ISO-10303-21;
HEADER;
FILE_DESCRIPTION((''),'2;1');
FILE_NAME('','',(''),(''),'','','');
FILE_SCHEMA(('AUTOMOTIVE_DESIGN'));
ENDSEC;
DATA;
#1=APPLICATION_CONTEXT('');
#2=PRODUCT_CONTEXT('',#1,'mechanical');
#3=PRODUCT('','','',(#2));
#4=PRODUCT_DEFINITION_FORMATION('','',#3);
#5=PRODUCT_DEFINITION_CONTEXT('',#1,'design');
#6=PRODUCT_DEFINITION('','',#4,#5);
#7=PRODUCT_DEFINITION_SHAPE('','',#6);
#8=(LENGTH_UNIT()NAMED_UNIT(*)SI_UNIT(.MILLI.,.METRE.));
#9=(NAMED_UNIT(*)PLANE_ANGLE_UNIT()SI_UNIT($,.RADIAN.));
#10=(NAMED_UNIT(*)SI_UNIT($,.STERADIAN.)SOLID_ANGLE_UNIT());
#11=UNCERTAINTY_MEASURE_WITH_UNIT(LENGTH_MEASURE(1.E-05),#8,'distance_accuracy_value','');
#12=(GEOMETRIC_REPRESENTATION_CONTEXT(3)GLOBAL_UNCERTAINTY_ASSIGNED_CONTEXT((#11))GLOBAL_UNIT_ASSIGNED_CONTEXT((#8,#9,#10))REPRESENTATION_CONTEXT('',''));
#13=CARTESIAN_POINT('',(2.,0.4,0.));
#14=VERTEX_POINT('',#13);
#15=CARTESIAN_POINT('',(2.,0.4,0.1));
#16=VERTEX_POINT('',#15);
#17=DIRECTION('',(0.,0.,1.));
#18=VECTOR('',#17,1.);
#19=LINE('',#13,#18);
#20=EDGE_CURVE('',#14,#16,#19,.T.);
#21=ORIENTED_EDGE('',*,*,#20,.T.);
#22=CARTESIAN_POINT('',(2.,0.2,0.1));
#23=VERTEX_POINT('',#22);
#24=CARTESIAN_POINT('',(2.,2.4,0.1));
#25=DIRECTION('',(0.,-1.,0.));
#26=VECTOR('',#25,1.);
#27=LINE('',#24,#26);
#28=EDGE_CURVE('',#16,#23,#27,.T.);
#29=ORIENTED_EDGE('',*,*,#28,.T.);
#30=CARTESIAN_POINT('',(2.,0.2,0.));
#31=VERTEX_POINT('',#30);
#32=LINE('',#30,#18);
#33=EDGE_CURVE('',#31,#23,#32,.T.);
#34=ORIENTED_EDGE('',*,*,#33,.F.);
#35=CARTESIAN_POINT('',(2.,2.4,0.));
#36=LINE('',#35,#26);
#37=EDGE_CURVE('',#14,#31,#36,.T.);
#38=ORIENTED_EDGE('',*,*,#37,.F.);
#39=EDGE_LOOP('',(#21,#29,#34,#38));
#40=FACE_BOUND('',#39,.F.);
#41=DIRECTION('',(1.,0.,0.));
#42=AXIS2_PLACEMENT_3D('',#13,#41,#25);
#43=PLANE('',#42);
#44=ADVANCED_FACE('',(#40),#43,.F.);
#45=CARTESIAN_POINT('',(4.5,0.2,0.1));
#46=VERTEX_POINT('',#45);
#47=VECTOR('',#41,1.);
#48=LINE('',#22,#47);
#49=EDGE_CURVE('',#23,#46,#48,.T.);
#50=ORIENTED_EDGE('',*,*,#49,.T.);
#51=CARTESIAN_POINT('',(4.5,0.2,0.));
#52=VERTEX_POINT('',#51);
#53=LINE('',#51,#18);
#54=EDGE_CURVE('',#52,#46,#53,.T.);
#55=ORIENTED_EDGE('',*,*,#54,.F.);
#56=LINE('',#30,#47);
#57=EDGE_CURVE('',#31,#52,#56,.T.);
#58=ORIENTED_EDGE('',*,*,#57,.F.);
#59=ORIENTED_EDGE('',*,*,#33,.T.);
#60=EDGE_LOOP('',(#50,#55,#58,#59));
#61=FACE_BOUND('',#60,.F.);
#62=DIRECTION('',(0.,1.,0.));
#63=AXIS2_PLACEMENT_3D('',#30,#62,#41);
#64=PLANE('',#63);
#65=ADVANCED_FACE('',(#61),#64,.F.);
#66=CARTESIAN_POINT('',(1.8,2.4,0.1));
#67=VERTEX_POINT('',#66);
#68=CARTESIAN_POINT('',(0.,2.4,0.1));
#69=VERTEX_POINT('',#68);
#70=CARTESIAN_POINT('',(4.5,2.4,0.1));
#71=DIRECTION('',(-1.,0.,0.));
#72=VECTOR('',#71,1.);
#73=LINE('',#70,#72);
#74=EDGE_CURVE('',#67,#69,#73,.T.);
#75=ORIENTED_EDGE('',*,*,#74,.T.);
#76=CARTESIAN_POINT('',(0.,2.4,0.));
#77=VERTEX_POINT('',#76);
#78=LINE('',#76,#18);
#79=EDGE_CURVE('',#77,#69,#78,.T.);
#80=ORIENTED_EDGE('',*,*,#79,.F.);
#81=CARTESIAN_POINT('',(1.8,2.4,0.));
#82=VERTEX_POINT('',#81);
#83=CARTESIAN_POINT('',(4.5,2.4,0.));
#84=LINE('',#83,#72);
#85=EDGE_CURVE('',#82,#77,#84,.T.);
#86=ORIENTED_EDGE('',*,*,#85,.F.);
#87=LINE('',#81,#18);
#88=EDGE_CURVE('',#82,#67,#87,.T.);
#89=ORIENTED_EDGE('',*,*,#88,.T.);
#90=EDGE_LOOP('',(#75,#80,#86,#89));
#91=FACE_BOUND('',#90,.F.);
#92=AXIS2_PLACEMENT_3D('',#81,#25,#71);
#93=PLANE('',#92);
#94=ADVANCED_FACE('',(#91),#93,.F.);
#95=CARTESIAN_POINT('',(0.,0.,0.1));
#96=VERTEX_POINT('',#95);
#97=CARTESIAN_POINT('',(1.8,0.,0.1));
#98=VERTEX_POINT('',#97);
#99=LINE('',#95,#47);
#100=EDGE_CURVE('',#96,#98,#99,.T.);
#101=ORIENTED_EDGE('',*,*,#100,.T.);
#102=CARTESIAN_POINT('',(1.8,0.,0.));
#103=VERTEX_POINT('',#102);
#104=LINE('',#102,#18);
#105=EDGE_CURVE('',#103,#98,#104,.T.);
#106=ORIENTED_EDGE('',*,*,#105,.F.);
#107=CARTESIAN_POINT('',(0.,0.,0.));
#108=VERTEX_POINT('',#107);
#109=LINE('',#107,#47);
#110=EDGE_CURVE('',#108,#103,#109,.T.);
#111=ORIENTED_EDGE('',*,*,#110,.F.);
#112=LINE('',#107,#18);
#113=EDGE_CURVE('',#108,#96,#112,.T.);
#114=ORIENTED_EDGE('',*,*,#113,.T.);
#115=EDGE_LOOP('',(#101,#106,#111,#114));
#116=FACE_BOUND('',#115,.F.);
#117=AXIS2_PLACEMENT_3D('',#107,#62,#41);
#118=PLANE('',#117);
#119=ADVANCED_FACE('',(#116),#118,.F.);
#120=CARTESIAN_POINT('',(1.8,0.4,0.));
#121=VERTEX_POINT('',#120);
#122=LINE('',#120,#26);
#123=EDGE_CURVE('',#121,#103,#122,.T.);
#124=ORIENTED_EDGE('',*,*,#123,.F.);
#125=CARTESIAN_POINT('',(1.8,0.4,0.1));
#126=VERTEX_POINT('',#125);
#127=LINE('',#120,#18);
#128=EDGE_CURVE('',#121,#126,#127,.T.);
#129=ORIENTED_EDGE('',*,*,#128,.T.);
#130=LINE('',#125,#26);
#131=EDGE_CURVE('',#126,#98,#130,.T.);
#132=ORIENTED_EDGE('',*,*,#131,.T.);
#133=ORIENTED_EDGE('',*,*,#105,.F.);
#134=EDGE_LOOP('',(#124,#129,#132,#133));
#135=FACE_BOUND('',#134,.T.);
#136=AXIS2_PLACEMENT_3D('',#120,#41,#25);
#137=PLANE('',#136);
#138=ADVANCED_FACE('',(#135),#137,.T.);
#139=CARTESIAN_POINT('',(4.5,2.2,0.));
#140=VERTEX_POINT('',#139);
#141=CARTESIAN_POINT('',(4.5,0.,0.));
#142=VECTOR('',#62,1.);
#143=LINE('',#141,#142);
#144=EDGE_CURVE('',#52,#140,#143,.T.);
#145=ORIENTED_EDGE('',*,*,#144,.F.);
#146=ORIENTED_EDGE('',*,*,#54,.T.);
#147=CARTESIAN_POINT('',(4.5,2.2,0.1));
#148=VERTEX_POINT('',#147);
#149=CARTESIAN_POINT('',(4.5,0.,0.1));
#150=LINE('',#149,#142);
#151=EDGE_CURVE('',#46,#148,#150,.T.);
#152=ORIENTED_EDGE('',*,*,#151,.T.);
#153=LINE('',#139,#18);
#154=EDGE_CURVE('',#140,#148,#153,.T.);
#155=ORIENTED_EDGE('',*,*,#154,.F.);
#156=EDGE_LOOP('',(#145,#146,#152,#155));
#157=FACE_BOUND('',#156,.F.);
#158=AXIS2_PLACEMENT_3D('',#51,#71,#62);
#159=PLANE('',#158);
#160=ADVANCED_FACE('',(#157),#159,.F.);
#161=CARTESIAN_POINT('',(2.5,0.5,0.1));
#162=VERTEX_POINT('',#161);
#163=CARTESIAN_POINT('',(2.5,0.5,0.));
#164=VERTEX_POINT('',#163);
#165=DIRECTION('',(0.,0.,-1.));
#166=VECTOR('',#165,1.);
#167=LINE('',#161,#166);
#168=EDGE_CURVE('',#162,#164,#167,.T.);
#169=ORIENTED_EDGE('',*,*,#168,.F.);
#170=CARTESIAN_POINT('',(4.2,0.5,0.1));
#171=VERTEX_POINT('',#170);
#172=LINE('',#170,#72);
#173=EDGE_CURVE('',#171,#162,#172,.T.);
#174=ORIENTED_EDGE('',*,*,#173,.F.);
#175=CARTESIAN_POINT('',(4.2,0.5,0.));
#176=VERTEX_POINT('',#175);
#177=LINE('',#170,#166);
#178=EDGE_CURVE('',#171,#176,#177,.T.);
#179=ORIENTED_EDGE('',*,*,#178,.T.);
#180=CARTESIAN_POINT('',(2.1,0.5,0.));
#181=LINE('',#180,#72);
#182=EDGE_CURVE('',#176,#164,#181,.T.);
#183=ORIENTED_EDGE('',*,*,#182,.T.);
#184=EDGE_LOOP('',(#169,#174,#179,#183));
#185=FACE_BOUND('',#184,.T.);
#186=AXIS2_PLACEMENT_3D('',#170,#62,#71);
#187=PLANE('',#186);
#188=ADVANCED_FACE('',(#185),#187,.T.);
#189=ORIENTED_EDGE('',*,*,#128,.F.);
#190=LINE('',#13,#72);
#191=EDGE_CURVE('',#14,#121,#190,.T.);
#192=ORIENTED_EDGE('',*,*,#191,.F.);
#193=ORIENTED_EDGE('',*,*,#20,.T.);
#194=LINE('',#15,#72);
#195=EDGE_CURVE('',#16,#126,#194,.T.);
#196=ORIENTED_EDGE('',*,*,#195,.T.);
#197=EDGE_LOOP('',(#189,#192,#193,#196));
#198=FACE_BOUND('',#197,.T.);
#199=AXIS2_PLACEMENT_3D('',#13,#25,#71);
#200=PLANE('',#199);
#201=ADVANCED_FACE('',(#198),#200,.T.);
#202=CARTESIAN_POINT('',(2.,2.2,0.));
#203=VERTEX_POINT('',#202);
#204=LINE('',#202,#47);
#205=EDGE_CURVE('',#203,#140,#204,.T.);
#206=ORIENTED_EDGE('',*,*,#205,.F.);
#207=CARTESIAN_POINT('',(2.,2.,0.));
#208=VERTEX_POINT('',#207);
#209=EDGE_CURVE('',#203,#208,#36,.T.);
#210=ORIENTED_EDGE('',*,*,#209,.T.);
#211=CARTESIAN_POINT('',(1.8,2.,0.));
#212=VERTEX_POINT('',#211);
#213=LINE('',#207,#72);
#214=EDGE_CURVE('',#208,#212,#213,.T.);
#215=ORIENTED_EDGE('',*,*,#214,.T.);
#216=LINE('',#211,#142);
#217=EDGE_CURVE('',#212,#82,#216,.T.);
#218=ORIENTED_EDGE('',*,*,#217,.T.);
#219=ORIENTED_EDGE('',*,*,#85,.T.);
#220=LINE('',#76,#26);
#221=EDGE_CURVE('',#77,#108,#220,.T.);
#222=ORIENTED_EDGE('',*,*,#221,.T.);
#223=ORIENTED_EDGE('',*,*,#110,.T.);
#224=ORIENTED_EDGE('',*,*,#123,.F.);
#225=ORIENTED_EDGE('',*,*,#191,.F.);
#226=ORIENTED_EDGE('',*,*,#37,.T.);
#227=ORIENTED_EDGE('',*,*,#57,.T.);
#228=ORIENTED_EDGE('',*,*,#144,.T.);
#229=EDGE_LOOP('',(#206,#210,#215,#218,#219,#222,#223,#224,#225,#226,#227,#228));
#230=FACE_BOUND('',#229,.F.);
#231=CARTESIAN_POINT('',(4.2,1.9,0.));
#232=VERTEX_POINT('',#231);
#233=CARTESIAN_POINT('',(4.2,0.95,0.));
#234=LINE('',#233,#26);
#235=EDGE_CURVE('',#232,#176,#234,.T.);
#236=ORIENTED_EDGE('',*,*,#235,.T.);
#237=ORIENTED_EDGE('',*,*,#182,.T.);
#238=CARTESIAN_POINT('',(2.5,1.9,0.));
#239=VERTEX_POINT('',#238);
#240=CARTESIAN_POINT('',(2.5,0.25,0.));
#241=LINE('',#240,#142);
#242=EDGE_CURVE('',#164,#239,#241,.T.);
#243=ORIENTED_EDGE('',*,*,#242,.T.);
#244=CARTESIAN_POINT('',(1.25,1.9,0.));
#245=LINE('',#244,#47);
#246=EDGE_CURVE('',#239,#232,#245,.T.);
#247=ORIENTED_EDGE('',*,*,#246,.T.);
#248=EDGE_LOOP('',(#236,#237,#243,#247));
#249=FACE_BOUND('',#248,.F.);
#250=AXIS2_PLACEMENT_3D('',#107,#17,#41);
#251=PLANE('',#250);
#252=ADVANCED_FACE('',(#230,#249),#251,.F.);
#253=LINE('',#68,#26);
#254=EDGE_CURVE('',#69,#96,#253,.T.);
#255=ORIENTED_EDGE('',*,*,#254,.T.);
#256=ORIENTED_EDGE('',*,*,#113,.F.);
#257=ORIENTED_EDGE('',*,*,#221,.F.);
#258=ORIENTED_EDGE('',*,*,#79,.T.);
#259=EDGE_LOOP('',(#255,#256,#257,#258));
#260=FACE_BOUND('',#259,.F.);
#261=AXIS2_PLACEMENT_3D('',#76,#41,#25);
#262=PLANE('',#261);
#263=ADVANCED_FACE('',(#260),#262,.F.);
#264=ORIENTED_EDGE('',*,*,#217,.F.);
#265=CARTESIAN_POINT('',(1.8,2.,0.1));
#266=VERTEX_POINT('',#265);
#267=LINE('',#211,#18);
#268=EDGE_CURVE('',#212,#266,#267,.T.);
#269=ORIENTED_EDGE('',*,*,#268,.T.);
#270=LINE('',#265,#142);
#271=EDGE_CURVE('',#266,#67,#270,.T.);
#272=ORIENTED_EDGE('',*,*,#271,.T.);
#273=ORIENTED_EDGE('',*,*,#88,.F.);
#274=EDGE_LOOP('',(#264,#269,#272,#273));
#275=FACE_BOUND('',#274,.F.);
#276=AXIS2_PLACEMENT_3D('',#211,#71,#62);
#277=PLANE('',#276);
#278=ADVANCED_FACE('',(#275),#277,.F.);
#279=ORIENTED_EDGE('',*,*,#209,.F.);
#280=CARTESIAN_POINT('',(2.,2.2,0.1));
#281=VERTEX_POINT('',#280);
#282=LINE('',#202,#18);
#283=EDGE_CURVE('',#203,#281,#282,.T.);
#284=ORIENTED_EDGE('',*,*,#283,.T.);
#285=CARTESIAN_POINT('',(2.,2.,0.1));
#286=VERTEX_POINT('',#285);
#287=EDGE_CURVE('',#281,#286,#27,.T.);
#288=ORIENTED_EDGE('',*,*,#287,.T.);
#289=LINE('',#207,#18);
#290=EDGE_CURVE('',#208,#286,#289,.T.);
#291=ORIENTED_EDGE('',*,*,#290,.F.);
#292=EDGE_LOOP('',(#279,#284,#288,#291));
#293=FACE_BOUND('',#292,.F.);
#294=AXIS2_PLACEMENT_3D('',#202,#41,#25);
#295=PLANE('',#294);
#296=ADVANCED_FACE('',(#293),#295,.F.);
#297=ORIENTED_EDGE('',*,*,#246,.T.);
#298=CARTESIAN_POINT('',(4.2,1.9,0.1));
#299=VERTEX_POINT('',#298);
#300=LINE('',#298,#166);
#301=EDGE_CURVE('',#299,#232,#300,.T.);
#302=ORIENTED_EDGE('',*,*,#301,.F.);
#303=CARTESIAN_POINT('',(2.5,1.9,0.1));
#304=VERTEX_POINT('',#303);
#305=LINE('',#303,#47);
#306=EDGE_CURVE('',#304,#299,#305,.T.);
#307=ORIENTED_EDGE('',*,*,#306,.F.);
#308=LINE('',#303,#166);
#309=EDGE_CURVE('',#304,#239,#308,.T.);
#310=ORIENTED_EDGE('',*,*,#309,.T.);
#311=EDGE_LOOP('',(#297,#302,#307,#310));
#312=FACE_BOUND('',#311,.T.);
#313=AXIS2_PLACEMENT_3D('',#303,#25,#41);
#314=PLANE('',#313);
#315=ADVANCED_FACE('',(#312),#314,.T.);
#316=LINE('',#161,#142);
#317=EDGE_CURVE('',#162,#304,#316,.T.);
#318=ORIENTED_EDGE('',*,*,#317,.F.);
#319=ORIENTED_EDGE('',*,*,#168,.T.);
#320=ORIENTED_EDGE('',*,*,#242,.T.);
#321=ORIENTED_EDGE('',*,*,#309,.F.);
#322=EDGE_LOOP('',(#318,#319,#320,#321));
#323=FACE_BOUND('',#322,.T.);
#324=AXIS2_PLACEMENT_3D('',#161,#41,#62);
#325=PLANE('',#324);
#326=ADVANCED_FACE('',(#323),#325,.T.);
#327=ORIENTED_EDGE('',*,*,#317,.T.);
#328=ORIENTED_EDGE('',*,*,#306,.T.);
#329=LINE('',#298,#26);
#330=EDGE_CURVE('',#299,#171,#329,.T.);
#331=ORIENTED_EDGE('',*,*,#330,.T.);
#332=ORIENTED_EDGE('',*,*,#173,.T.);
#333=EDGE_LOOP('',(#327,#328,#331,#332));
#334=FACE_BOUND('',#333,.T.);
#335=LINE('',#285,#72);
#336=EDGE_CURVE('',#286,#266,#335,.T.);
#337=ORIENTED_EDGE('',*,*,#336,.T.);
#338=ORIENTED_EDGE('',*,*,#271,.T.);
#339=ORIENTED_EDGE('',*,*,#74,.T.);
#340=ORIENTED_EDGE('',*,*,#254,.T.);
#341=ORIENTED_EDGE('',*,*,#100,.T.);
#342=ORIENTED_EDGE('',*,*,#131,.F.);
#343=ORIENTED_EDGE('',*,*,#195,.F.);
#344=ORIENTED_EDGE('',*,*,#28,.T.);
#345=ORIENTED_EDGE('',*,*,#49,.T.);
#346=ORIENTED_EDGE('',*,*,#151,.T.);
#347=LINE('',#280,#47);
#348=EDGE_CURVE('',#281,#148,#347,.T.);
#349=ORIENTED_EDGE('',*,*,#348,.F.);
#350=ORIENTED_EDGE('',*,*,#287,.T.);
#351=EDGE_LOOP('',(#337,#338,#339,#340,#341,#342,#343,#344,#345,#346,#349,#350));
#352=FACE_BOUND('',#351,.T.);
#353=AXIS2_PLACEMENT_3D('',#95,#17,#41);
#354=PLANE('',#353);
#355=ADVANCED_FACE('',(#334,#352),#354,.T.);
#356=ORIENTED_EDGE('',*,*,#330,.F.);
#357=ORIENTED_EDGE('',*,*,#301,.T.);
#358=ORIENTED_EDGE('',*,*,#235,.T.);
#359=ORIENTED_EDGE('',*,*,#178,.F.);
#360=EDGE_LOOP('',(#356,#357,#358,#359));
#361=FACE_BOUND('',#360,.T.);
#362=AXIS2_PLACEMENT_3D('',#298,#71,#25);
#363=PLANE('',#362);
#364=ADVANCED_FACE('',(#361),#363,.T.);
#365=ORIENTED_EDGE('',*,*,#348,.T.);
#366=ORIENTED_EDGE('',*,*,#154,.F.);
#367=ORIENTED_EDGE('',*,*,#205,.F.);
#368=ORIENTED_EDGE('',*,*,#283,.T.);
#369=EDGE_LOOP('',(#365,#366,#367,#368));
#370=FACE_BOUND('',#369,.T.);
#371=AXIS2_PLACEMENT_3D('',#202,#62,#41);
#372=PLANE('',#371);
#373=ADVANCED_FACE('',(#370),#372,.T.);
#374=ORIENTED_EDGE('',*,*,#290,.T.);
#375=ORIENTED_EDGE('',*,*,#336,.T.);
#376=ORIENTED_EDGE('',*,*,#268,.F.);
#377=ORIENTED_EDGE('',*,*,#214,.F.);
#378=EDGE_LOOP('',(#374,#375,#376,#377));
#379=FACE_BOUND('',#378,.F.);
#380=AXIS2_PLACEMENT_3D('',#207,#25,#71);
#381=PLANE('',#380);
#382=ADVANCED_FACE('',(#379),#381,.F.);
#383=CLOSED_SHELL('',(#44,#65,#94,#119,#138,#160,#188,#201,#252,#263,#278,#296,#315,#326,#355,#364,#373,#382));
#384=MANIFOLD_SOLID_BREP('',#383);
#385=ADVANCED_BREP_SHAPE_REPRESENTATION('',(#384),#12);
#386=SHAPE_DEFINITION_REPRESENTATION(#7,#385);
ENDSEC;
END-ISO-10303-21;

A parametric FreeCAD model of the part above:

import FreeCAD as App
import Part
import Sketcher
from FreeCAD import Vector
Q = App.Units.Quantity


def add_polygon(sketch, points):
    """Adds a closed chain of lines whose ends are joined by coincident constraints."""
    first, n = sketch.GeometryCount, len(points)
    for a, b in zip(points, points[1:] + points[:1]):
        sketch.addGeometry(Part.LineSegment(App.Vector(*a, 0), App.Vector(*b, 0)), False)
    for i in range(n):
        sketch.addConstraint(Sketcher.Constraint("Coincident", first + i, 2, first + (i + 1) % n, 1))

doc = App.newDocument("Part")
body = doc.addObject("PartDesign::Body", "Body")

# Sketch on XY plane
sketch1 = doc.addObject("Sketcher::SketchObject", "Sketch")
body.addObject(sketch1)
sketch1.AttachmentSupport = (doc.XY_Plane, [""])
sketch1.MapMode = "FlatFace"
add_polygon(sketch1, [(0, 2.4), (0, 0), (1.8, 0), (1.8, 0.4), (2, 0.4), (2, 0.2), (4.5, 0.2), (4.5, 2.2), (2, 2.2), (2, 2), (1.8, 2), (1.8, 2.4)])  # lines 0-11
sketch1.addConstraint([
    Sketcher.Constraint("Vertical", 0),
    Sketcher.Constraint("Horizontal", 1),
    Sketcher.Constraint("Vertical", 2),
    Sketcher.Constraint("Horizontal", 3),
    Sketcher.Constraint("Vertical", 4),
    Sketcher.Constraint("Horizontal", 5),
    Sketcher.Constraint("Vertical", 6),
    Sketcher.Constraint("Horizontal", 7),
    Sketcher.Constraint("Vertical", 8),
    Sketcher.Constraint("Horizontal", 9),
    Sketcher.Constraint("Vertical", 10),
    Sketcher.Constraint("Horizontal", 11),
    Sketcher.Constraint("Coincident", 0, 2, -1, 1),
    Sketcher.Constraint("Vertical", 4, 2, 7, 2),
    Sketcher.Constraint("Vertical", 2, 2, 9, 2),
    Sketcher.Constraint("Equal", 9, 4),
    Sketcher.Constraint("Equal", 4, 8),
    Sketcher.Constraint("Equal", 2, 10),
    Sketcher.Constraint("DistanceX", 3, 1, 3, 2, Q("0.2 mm")),
    Sketcher.Constraint("DistanceX", 5, 1, 5, 2, Q("2.5 mm")),
    Sketcher.Constraint("DistanceY", 0, 2, 0, 1, Q("2.4 mm")),
    Sketcher.Constraint("DistanceY", 2, 1, 2, 2, Q("0.4 mm")),
    Sketcher.Constraint("DistanceX", -1, 1, 5, 2, Q("4.5 mm")),
])
pad1 = doc.addObject("PartDesign::Pad", "Pad")
body.addObject(pad1)
pad1.Profile = sketch1
pad1.Length = 0.1

# Sketch on XY plane
sketch2 = doc.addObject("Sketcher::SketchObject", "Sketch001")
body.addObject(sketch2)
sketch2.AttachmentSupport = (doc.XY_Plane, [""])
sketch2.MapMode = "FlatFace"
sketch2.AttachmentOffset = App.Placement(Vector(0, 0, 0.1), App.Rotation())
add_polygon(sketch2, [(4.2, 1.9), (2.5, 1.9), (2.5, 0.5), (4.2, 0.5)])  # lines 0-3
sketch2.addConstraint([
    Sketcher.Constraint("Horizontal", 0),
    Sketcher.Constraint("Vertical", 1),
    Sketcher.Constraint("Horizontal", 2),
    Sketcher.Constraint("Vertical", 3),
    Sketcher.Constraint("DistanceY", -1, 1, 1, 2, Q("0.5 mm")),
    Sketcher.Constraint("DistanceX", 0, 2, 0, 1, Q("1.7 mm")),
    Sketcher.Constraint("DistanceY", 1, 2, 1, 1, Q("1.4 mm")),
    Sketcher.Constraint("DistanceX", -1, 1, 0, 2, Q("2.5 mm")),
])
pocket1 = doc.addObject("PartDesign::Pocket", "Pocket")
body.addObject(pocket1)
pocket1.Profile = sketch2
pocket1.Type = "ThroughAll"

doc.recompute()
